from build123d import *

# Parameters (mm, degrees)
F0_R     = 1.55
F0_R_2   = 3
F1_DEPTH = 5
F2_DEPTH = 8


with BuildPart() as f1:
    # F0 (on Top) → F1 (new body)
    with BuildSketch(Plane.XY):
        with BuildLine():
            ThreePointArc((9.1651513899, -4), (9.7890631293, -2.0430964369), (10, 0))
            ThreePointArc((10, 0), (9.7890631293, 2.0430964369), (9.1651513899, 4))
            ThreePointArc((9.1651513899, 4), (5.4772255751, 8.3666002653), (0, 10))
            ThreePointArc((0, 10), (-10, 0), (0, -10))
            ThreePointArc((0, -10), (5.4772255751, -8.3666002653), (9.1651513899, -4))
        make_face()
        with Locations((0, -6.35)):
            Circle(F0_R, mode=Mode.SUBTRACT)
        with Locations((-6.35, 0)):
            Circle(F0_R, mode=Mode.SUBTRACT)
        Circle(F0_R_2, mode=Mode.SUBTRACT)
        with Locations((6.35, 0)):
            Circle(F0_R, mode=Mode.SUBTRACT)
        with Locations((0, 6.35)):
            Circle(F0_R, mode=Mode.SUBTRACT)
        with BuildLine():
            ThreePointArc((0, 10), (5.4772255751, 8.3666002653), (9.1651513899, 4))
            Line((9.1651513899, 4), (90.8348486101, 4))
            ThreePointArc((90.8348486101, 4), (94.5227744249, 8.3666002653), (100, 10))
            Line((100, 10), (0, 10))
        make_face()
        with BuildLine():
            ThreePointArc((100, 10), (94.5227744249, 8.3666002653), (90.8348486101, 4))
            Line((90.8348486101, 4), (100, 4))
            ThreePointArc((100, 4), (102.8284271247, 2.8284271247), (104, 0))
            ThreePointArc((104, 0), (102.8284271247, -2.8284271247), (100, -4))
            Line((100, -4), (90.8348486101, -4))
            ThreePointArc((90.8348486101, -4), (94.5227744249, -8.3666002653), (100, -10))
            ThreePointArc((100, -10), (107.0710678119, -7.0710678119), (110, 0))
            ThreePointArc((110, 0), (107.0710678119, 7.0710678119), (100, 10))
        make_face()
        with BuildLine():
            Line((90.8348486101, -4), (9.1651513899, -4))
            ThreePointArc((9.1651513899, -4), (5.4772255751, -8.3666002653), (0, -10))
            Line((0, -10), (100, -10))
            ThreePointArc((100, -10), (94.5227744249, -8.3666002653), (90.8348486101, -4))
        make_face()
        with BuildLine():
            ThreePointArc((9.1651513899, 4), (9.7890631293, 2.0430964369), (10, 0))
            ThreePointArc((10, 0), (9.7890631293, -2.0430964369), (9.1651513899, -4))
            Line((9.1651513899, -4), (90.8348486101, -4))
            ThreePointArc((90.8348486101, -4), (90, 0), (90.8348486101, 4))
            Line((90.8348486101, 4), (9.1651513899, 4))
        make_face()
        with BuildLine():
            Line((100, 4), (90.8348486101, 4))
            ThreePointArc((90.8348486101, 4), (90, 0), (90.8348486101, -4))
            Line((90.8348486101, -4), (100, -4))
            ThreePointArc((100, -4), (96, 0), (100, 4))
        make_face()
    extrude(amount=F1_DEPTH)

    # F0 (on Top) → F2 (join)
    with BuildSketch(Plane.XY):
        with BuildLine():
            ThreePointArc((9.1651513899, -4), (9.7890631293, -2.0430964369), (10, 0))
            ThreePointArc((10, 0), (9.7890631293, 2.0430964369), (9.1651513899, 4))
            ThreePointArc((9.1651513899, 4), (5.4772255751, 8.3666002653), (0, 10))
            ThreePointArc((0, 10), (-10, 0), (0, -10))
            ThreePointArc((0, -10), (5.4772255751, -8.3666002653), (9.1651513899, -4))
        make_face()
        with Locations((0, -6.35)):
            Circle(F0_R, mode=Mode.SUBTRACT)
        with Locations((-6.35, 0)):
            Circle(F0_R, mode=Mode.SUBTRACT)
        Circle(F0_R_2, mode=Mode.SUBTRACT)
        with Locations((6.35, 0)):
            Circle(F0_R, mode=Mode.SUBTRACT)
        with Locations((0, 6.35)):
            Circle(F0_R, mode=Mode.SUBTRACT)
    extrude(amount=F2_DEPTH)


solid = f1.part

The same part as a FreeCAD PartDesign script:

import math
import FreeCAD as App
import Part
import Sketcher

doc = App.newDocument("Part")
body = doc.addObject("PartDesign::Body", "Body")

# Sketch on XY plane
sketch1 = doc.addObject("Sketcher::SketchObject", "Sketch")
body.addObject(sketch1)
sketch1.AttachmentSupport = (doc.XY_Plane, [""])
sketch1.MapMode = "FlatFace"
sketch1.addGeometry([
    Part.ArcOfCircle(Part.Circle(App.Vector(100, 0, 0), App.Vector(0, 0, 1), 10), math.radians(-90), math.radians(0)),  # 0
    Part.ArcOfCircle(Part.Circle(App.Vector(100, 0, 0), App.Vector(0, 0, 1), 10), math.radians(0), math.radians(90)),  # 1
    Part.LineSegment(App.Vector(100, 10, 0), App.Vector(0, 10, 0)),  # 2
    Part.ArcOfCircle(Part.Circle(App.Vector(0, 0, 0), App.Vector(0, 0, 1), 10), math.radians(90), math.radians(270)),  # 3
    Part.LineSegment(App.Vector(0, -10, 0), App.Vector(100, -10, 0)),  # 4
    Part.ArcOfCircle(Part.Circle(App.Vector(100, 0, 0), App.Vector(0, 0, 1), 4), math.radians(0), math.radians(90)),  # 5
    Part.ArcOfCircle(Part.Circle(App.Vector(100, 0, 0), App.Vector(0, 0, 1), 4), math.radians(-90), math.radians(0)),  # 6
    Part.ArcOfCircle(Part.Circle(App.Vector(100, 0, 0), App.Vector(0, 0, 1), 4), math.radians(90), math.radians(270)),  # 7
    Part.Circle(App.Vector(0, -6.3, 0), App.Vector(0, 0, 1), 1.6),  # 8
    Part.Circle(App.Vector(-6.3, 0, 0), App.Vector(0, 0, 1), 1.6),  # 9
    Part.Circle(App.Vector(0, 0, 0), App.Vector(0, 0, 1), 3),  # 10
    Part.Circle(App.Vector(6.3, 0, 0), App.Vector(0, 0, 1), 1.6),  # 11
    Part.Circle(App.Vector(0, 6.3, 0), App.Vector(0, 0, 1), 1.6),  # 12
], False)
sketch1.addConstraint([
    Sketcher.Constraint("Tangent", 0, 2, 1, 1),
    Sketcher.Constraint("Tangent", 1, 2, 2, 1),
    Sketcher.Constraint("Tangent", 2, 2, 3, 1),
    Sketcher.Constraint("Tangent", 3, 2, 4, 1),
    Sketcher.Constraint("Tangent", 4, 2, 0, 1),
    Sketcher.Constraint("Tangent", 5, 1, 6, 2),
    Sketcher.Constraint("Tangent", 6, 1, 7, 2),
    Sketcher.Constraint("Tangent", 7, 1, 5, 2),
    Sketcher.Constraint("Horizontal", 2),
    Sketcher.Constraint("Horizontal", 4),
    Sketcher.Constraint("Coincident", 3, 3, -1, 1),
    Sketcher.Constraint("Coincident", 10, 3, -1, 1),
    Sketcher.Constraint("Coincident", 5, 3, 0, 3),
    Sketcher.Constraint("Equal", 0, 1),
    Sketcher.Constraint("Equal", 8, 9),
    Sketcher.Constraint("Equal", 9, 11),
    Sketcher.Constraint("Equal", 11, 12),
    Sketcher.Constraint("Symmetric", 9, 3, 11, 3, -1, 1),
    Sketcher.Constraint("Symmetric", 8, 3, 12, 3, -1, 1),
    Sketcher.Constraint("PointOnObject", 8, 3, -2),
    Sketcher.Constraint("PointOnObject", 9, 3, -1),
    Sketcher.Constraint("PointOnObject", 0, 2, -1),
    Sketcher.Constraint("PointOnObject", 5, 1, -1),
    Sketcher.Constraint("Vertical", 4, 2, 6, 1),
    Sketcher.Constraint("Vertical", 6, 1, 7, 1),
    Sketcher.Constraint("Diameter", 10, 6.0),
    Sketcher.Constraint("Radius", 0, 10.0),
    Sketcher.Constraint("Radius", 5, 4.0),
    Sketcher.Constraint("Diameter", 8, 3.1),
    Sketcher.Constraint("DistanceX", 2, 2, 2, 1, 100.0),
    Sketcher.Constraint("DistanceX", 9, 3, 11, 3, 12.7),
    Sketcher.Constraint("DistanceY", 8, 3, 12, 3, 12.7),
])
pad1 = doc.addObject("PartDesign::Pad", "Pad")
body.addObject(pad1)
pad1.Profile = sketch1
pad1.Length = 5

# Sketch on XY plane
sketch2 = doc.addObject("Sketcher::SketchObject", "Sketch001")
body.addObject(sketch2)
sketch2.AttachmentSupport = (doc.XY_Plane, [""])
sketch2.MapMode = "FlatFace"
sketch2.addGeometry([
    Part.ArcOfCircle(Part.Circle(App.Vector(0, 0, 0), App.Vector(0, 0, 1), 10), math.radians(-24), math.radians(0)),  # 0
    Part.ArcOfCircle(Part.Circle(App.Vector(0, 0, 0), App.Vector(0, 0, 1), 10), math.radians(0), math.radians(24)),  # 1
    Part.ArcOfCircle(Part.Circle(App.Vector(0, 0, 0), App.Vector(0, 0, 1), 10), math.radians(24), math.radians(90)),  # 2
    Part.ArcOfCircle(Part.Circle(App.Vector(0, 0, 0), App.Vector(0, 0, 1), 10), math.radians(90), math.radians(270)),  # 3
    Part.ArcOfCircle(Part.Circle(App.Vector(0, 0, 0), App.Vector(0, 0, 1), 10), math.radians(-90), math.radians(-24)),  # 4
    Part.Circle(App.Vector(0, -6.3, 0), App.Vector(0, 0, 1), 1.6),  # 5
    Part.Circle(App.Vector(-6.3, 0, 0), App.Vector(0, 0, 1), 1.6),  # 6
    Part.Circle(App.Vector(0, 0, 0), App.Vector(0, 0, 1), 3),  # 7
    Part.Circle(App.Vector(6.3, 0, 0), App.Vector(0, 0, 1), 1.6),  # 8
    Part.Circle(App.Vector(0, 6.3, 0), App.Vector(0, 0, 1), 1.6),  # 9
], False)
sketch2.addConstraint([
    Sketcher.Constraint("Tangent", 0, 2, 1, 1),
    Sketcher.Constraint("Tangent", 1, 2, 2, 1),
    Sketcher.Constraint("Tangent", 2, 2, 3, 1),
    Sketcher.Constraint("Tangent", 3, 2, 4, 1),
    Sketcher.Constraint("Tangent", 4, 2, 0, 1),
    Sketcher.Constraint("Coincident", 0, 3, -1, 1),
    Sketcher.Constraint("Coincident", 2, 3, -1, 1),
    Sketcher.Constraint("Coincident", 7, 3, -1, 1),
    Sketcher.Constraint("Equal", 5, 6),
    Sketcher.Constraint("Equal", 6, 8),
    Sketcher.Constraint("Equal", 8, 9),
    Sketcher.Constraint("Symmetric", 6, 3, 8, 3, -1, 1),
    Sketcher.Constraint("Symmetric", 5, 3, 9, 3, -1, 1),
    Sketcher.Constraint("PointOnObject", 5, 3, -2),
    Sketcher.Constraint("PointOnObject", 6, 3, -1),
    Sketcher.Constraint("PointOnObject", 0, 2, -1),
    Sketcher.Constraint("PointOnObject", 2, 2, -2),
    Sketcher.Constraint("PointOnObject", 3, 2, -2),
    Sketcher.Constraint("Vertical", 1, 2, 4, 2),
    Sketcher.Constraint("Diameter", 7, 6.0),
    Sketcher.Constraint("Radius", 0, 10.0),
    Sketcher.Constraint("Diameter", 5, 3.1),
    Sketcher.Constraint("DistanceY", -1, 1, 1, 2, 4.0),
    Sketcher.Constraint("DistanceY", 5, 3, -1, 1, 6.35),
    Sketcher.Constraint("DistanceX", 6, 3, -1, 1, 6.35),
])
pad2 = doc.addObject("PartDesign::Pad", "Pad001")
body.addObject(pad2)
pad2.Profile = sketch2
pad2.Length = 8

doc.recompute()
